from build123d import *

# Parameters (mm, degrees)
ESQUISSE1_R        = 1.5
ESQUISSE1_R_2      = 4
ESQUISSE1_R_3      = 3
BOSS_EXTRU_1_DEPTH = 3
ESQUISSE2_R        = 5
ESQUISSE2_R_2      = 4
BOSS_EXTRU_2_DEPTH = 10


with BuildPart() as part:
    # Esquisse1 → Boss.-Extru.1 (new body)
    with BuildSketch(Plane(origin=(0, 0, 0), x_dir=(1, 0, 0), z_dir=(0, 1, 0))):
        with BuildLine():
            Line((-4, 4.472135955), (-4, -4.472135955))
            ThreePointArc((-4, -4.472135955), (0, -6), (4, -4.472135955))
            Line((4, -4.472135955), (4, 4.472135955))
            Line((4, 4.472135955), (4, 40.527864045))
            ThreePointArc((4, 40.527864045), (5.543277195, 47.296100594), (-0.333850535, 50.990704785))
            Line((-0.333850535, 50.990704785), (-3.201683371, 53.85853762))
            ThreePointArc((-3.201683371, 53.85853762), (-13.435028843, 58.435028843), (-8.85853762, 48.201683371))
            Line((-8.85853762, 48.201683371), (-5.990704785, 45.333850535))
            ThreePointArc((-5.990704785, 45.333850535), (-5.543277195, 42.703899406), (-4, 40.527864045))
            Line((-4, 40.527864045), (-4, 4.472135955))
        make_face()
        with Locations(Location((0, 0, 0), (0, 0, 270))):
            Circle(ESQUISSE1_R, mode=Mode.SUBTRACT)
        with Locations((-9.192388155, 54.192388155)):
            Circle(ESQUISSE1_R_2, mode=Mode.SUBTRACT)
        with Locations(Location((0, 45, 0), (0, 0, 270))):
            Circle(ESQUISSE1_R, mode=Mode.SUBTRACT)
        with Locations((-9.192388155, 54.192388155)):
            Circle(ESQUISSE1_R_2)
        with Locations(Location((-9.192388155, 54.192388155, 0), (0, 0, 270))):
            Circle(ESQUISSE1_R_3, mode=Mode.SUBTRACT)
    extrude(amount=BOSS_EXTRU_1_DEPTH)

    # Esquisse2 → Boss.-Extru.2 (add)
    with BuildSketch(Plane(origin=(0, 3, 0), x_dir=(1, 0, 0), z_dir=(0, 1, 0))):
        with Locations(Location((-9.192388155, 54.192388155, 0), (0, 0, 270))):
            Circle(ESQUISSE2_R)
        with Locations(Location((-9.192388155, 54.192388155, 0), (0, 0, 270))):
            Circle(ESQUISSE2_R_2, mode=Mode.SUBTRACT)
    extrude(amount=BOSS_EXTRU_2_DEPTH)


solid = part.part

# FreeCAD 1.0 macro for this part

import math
import FreeCAD as App
import Part
import Sketcher

V = App.Vector
Q = App.Units.Quantity

doc = App.newDocument("Part")
body = doc.addObject("PartDesign::Body", "Body")

# Sketch on XZ plane
sketch1 = body.newObject("Sketcher::SketchObject", "Sketch")
sketch1.AttachmentSupport = (doc.getObject("XZ_Plane"), [""])
sketch1.MapMode = "FlatFace"
sketch1.addGeometry([
    Part.ArcOfCircle(Part.Circle(V(0, 0, 0), V(0, 0, 1), 6), math.radians(48.189685), math.radians(131.810315)),  # 0
    Part.LineSegment(V(4, 4.472136, 0), V(4, -40.527864, 0)),  # 1
    Part.ArcOfCircle(Part.Circle(V(0, -45, 0), V(0, 0, 1), 6), math.radians(-93.189685), math.radians(48.189685)),  # 2
    Part.LineSegment(V(-0.333851, -50.990705, 0), V(-3.201683, -53.858538, 0)),  # 3
    Part.ArcOfCircle(Part.Circle(V(-9.192388, -54.192388, 0), V(0, 0, 1), 6), math.radians(86.810315), math.radians(363.189685)),  # 4
    Part.LineSegment(V(-8.858538, -48.201683, 0), V(-5.990705, -45.333851, 0)),  # 5
    Part.ArcOfCircle(Part.Circle(V(0, -45, 0), V(0, 0, 1), 6), math.radians(131.810315), math.radians(183.189685)),  # 6
    Part.LineSegment(V(-4, -40.527864, 0), V(-4, 4.472136, 0)),  # 7
    Part.Circle(V(0, 0, 0), V(0, 0, 1), 1.5),  # 8
    Part.Circle(V(-9.192388, -54.192388, 0), V(0, 0, 1), 3),  # 9
    Part.Circle(V(0, -45, 0), V(0, 0, 1), 1.5),  # 10
], False)
sketch1.addConstraint([
    Sketcher.Constraint("Coincident", 0, 1, 1, 1),
    Sketcher.Constraint("Coincident", 1, 2, 2, 2),
    Sketcher.Constraint("Coincident", 2, 1, 3, 1),
    Sketcher.Constraint("Coincident", 3, 2, 4, 2),
    Sketcher.Constraint("Coincident", 4, 1, 5, 1),
    Sketcher.Constraint("Coincident", 5, 2, 6, 2),
    Sketcher.Constraint("Coincident", 6, 1, 7, 1),
    Sketcher.Constraint("Coincident", 7, 2, 0, 2),
    Sketcher.Constraint("Vertical", 1),
    Sketcher.Constraint("Vertical", 7),
    Sketcher.Constraint("Coincident", 0, 3, -1, 1),
    Sketcher.Constraint("Coincident", 8, 3, -1, 1),
    Sketcher.Constraint("Coincident", 6, 3, 2, 3),
    Sketcher.Constraint("Coincident", 9, 3, 4, 3),
    Sketcher.Constraint("Coincident", 10, 3, 2, 3),
    Sketcher.Constraint("Equal", 0, 2),
    Sketcher.Constraint("Equal", 2, 4),
    Sketcher.Constraint("Equal", 4, 6),
    Sketcher.Constraint("Equal", 8, 10),
    Sketcher.Constraint("Symmetric", 1, 2, 6, 1, -2),
    Sketcher.Constraint("Parallel", 3, 5),
    Sketcher.Constraint("Equal", 3, 5),
    Sketcher.Constraint("Diameter", 8, Q("3 mm")),
    Sketcher.Constraint("Diameter", 9, Q("6 mm")),
    Sketcher.Constraint("Radius", 0, Q("6 mm")),
    Sketcher.Constraint("DistanceY", 1, 2, 1, 1, Q("45 mm")),
    Sketcher.Constraint("Angle", 3, Q("-135 deg")),
    Sketcher.Constraint("DistanceX", -1, 1, 0, 1, Q("4 mm")),
    Sketcher.Constraint("Distance", 3, Q("4.055728 mm")),
    Sketcher.Constraint("DistanceX", 4, 3, -1, 1, Q("9.192388 mm")),
    Sketcher.Constraint("DistanceY", 4, 3, -1, 1, Q("54.192388 mm")),
])
pad1 = body.newObject("PartDesign::Pad", "Pad")
pad1.Profile = sketch1
pad1.Length = 3
pad1.Reversed = True

# Sketch on XZ plane
sketch2 = body.newObject("Sketcher::SketchObject", "Sketch001")
sketch2.AttachmentSupport = (doc.getObject("XZ_Plane"), [""])
sketch2.MapMode = "FlatFace"
sketch2.AttachmentOffset = App.Placement(V(0, 0, -3), App.Rotation())
sketch2.addGeometry([
    Part.Circle(V(-9.192388, -54.192388, 0), V(0, 0, 1), 5),
    Part.Circle(V(-9.192388, -54.192388, 0), V(0, 0, 1), 4),
], False)
sketch2.addConstraint([
    Sketcher.Constraint("Coincident", 1, 3, 0, 3),
    Sketcher.Constraint("Diameter", 0, Q("10 mm")),
    Sketcher.Constraint("Diameter", 1, Q("8 mm")),
    Sketcher.Constraint("DistanceX", 0, 3, -1, 1, Q("9.192388 mm")),
    Sketcher.Constraint("DistanceY", 0, 3, -1, 1, Q("54.192388 mm")),
])
pad2 = body.newObject("PartDesign::Pad", "Pad001")
pad2.Profile = sketch2
pad2.Length = 10
pad2.Reversed = True

doc.recompute()
